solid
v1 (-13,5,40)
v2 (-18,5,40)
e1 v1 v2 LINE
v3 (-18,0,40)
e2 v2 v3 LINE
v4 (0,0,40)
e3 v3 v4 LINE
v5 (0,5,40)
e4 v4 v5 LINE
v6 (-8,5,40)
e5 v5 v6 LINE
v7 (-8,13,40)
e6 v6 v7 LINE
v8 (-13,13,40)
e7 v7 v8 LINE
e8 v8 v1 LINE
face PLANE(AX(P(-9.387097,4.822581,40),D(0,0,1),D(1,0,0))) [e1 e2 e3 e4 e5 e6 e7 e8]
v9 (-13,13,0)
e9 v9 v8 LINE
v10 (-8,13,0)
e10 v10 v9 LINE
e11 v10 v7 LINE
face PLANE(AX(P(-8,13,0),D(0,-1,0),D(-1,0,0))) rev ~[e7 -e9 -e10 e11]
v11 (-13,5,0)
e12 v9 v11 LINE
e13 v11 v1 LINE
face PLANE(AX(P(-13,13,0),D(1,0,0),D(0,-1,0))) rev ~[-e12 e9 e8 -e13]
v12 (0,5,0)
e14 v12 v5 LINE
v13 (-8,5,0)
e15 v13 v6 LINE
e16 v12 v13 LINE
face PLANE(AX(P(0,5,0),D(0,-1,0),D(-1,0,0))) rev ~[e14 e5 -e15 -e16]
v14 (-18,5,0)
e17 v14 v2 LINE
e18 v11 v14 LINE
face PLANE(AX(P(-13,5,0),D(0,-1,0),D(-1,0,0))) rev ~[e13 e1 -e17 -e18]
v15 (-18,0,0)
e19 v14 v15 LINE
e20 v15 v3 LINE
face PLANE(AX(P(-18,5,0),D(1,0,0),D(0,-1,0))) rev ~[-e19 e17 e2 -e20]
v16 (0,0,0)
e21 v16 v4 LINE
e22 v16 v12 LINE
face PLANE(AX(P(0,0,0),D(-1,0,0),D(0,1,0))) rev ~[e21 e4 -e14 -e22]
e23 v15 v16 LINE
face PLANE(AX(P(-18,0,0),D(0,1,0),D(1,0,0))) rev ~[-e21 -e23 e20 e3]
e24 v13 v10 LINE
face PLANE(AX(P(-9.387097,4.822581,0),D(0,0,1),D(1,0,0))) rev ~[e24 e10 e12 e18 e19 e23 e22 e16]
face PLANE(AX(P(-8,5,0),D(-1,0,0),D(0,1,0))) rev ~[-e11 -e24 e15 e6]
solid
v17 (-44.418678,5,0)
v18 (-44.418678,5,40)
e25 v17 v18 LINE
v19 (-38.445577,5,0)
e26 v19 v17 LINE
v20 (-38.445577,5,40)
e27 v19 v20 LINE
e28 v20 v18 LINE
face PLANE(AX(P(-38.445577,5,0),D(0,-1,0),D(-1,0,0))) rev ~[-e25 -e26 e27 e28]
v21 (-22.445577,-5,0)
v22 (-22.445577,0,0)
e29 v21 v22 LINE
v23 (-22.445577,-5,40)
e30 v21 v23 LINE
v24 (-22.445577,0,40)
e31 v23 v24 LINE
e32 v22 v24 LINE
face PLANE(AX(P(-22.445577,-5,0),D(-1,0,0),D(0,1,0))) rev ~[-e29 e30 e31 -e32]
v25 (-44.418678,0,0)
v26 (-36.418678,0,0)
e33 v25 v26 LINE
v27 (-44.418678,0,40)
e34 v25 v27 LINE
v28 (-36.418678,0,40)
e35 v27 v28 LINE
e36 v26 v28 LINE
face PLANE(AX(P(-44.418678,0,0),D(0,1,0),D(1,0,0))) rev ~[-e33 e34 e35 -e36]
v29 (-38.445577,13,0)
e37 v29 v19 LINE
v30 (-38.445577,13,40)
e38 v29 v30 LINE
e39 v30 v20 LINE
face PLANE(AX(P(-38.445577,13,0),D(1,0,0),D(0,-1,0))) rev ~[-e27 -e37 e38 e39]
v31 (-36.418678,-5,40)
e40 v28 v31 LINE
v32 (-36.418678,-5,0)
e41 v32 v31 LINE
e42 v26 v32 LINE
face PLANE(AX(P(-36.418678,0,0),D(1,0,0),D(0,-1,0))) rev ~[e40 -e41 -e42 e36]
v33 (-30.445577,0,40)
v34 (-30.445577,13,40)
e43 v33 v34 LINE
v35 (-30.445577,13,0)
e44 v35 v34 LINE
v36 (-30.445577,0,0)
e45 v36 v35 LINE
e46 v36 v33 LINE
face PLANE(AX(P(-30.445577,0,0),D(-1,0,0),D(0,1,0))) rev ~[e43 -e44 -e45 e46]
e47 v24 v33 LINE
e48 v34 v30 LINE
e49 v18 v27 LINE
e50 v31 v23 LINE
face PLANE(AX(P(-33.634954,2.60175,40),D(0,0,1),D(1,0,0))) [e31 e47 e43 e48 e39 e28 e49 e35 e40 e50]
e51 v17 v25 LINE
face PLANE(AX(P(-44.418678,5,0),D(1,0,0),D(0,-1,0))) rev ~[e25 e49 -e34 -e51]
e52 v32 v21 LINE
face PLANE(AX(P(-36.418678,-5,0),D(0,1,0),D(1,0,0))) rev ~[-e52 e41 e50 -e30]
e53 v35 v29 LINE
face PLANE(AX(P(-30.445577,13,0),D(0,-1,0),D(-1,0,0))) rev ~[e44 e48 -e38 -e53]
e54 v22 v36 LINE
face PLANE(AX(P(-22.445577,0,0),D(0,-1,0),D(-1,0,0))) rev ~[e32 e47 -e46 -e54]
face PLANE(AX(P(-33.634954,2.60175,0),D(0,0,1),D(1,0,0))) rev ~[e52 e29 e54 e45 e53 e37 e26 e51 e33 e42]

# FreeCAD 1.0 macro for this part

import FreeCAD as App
import Part
import Sketcher

V = App.Vector
Q = App.Units.Quantity


def add_polygon(sketch, points):
    """Adds a closed chain of lines whose ends are joined by coincident constraints."""
    first, n = sketch.GeometryCount, len(points)
    for a, b in zip(points, points[1:] + points[:1]):
        sketch.addGeometry(Part.LineSegment(App.Vector(*a, 0), App.Vector(*b, 0)), False)
    for i in range(n):
        sketch.addConstraint(Sketcher.Constraint("Coincident", first + i, 2, first + (i + 1) % n, 1))

doc = App.newDocument("Part")
params = doc.addObject("Spreadsheet::Sheet", "Params")
for row, (alias, value) in enumerate([
    ("sketch1_width", "18 mm"),
    ("sketch1_width2", "8 mm"),
    ("pad1_length", "40 mm"),
], start=1):
    params.set(f"A{row}", alias)
    params.set(f"B{row}", "=" + value)
    params.setAlias(f"B{row}", alias)

body = doc.addObject("PartDesign::Body", "Body")
body.AllowCompound = True

sketch1 = body.newObject("Sketcher::SketchObject", "Sketch")
sketch1.AttachmentSupport = (doc.getObject("XY_Plane"), [""])
sketch1.MapMode = "FlatFace"
add_polygon(sketch1, [(-18, 0), (0, 0), (0, 5), (-8, 5), (-8, 13), (-13, 13), (-13, 5), (-18, 5)])
add_polygon(sketch1, [(-22, -5), (-22, 0), (-30, 0), (-30, 13), (-38, 13), (-38, 5), (-44, 5), (-44, 0), (-36, 0), (-36, -5)])
sketch1.addConstraint(Sketcher.Constraint("Horizontal", 0))
sketch1.addConstraint(Sketcher.Constraint("Vertical", 1))
sketch1.addConstraint(Sketcher.Constraint("Horizontal", 2))
sketch1.addConstraint(Sketcher.Constraint("Vertical", 3))
sketch1.addConstraint(Sketcher.Constraint("Horizontal", 4))
sketch1.addConstraint(Sketcher.Constraint("Vertical", 5))
sketch1.addConstraint(Sketcher.Constraint("Horizontal", 6))
sketch1.addConstraint(Sketcher.Constraint("Vertical", 7))
sketch1.addConstraint(Sketcher.Constraint("Vertical", 8))
sketch1.addConstraint(Sketcher.Constraint("Horizontal", 9))
sketch1.addConstraint(Sketcher.Constraint("Vertical", 10))
sketch1.addConstraint(Sketcher.Constraint("Horizontal", 11))
sketch1.addConstraint(Sketcher.Constraint("Vertical", 12))
sketch1.addConstraint(Sketcher.Constraint("Horizontal", 13))
sketch1.addConstraint(Sketcher.Constraint("Vertical", 14))
sketch1.addConstraint(Sketcher.Constraint("Horizontal", 15))
sketch1.addConstraint(Sketcher.Constraint("Vertical", 16))
sketch1.addConstraint(Sketcher.Constraint("Horizontal", 17))
sketch1.addConstraint(Sketcher.Constraint("Coincident", 0, 2, -1, 1))
sketch1.addConstraint(Sketcher.Constraint("PointOnObject", 8, 2, -1))
sketch1.addConstraint(Sketcher.Constraint("PointOnObject", 14, 2, -1))
sketch1.addConstraint(Sketcher.Constraint("Horizontal", 2, 2, 5, 2))
sketch1.addConstraint(Sketcher.Constraint("Horizontal", 4, 2, 10, 2))
sketch1.addConstraint(Sketcher.Constraint("Horizontal", 6, 2, 12, 2))
sketch1.addConstraint(Sketcher.Constraint("Equal", 4, 6))
sketch1.addConstraint(Sketcher.Constraint("Equal", 2, 9))
sketch1.addConstraint(Sketcher.Constraint("Equal", 9, 11))
sketch1.addConstraint(Sketcher.Constraint("Equal", 11, 15))
sketch1.addConstraint(Sketcher.Constraint("Equal", 6, 1))
sketch1.addConstraint(Sketcher.Constraint("Equal", 15, 3))
sketch1.addConstraint(Sketcher.Constraint("Equal", 7, 8))
sketch1.addConstraint(Sketcher.Constraint("DistanceX", 0, 1, 0, 2, Q("18 mm")))
sketch1.addConstraint(Sketcher.Constraint("DistanceX", 2, 2, 2, 1, Q("8 mm")))
sketch1.addConstraint(Sketcher.Constraint("DistanceX", 13, 2, 13, 1, Q("5.973101 mm")))
sketch1.addConstraint(Sketcher.Constraint("DistanceX", 8, 2, -1, 1, Q("22.445577 mm")))
sketch1.setExpression("Constraints[49]", "Params.sketch1_width")
sketch1.setExpression("Constraints[50]", "Params.sketch1_width2")
pad1 = body.newObject("PartDesign::Pad", "Pad")
pad1.Profile = sketch1
pad1.setExpression("Length", "Params.pad1_length")

doc.recompute()
